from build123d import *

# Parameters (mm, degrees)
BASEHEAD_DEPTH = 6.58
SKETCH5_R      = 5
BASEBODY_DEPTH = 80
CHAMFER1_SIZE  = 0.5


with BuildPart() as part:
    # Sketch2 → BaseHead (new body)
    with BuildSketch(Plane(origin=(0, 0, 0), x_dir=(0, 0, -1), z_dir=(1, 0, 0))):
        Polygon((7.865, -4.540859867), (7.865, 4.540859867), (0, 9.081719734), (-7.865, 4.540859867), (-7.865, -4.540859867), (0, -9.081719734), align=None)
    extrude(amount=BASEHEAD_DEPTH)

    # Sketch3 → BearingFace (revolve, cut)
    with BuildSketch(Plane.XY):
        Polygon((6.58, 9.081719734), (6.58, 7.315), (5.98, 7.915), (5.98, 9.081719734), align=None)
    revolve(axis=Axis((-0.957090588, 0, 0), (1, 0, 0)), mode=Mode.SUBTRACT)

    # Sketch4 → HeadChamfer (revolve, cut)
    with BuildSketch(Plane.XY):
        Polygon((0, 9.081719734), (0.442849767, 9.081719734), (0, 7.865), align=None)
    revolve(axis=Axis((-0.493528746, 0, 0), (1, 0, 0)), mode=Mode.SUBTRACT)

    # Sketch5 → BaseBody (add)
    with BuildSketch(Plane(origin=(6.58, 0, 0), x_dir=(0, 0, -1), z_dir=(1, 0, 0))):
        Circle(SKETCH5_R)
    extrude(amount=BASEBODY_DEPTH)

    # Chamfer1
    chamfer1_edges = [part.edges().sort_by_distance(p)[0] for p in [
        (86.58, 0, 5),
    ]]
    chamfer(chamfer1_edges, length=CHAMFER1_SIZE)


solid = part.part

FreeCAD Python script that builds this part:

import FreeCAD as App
import Part
import Sketcher
from FreeCAD import Vector
Q = App.Units.Quantity


def edges_at(feature, points):
    """Names of the edges that pass closest to the given points."""
    edges = feature.Shape.Edges
    near = lambda p: min(range(len(edges)), key=lambda i: edges[i].distToShape(Part.Vertex(*p))[0])
    return sorted({f"Edge{near(p) + 1}" for p in points})

doc = App.newDocument("Part")
body = doc.addObject("PartDesign::Body", "Body")

# Sketch on YZ plane
sketch1 = doc.addObject("Sketcher::SketchObject", "Sketch")
body.addObject(sketch1)
sketch1.AttachmentSupport = (doc.YZ_Plane, [""])
sketch1.MapMode = "FlatFace"
sketch1.addGeometry([
    Part.LineSegment(Vector(-5, -8, 0), Vector(5, -8, 0)),  # 0
    Part.LineSegment(Vector(5, -8, 0), Vector(9, 0, 0)),  # 1
    Part.LineSegment(Vector(9, 0, 0), Vector(5, 8, 0)),  # 2
    Part.LineSegment(Vector(5, 8, 0), Vector(-5, 8, 0)),  # 3
    Part.LineSegment(Vector(-5, 8, 0), Vector(-9, 0, 0)),  # 4
    Part.LineSegment(Vector(-9, 0, 0), Vector(-5, -8, 0)),  # 5
], False)
sketch1.addConstraint([
    Sketcher.Constraint("Coincident", 0, 2, 1, 1),
    Sketcher.Constraint("Coincident", 1, 2, 2, 1),
    Sketcher.Constraint("Coincident", 2, 2, 3, 1),
    Sketcher.Constraint("Coincident", 3, 2, 4, 1),
    Sketcher.Constraint("Coincident", 4, 2, 5, 1),
    Sketcher.Constraint("Coincident", 5, 2, 0, 1),
    Sketcher.Constraint("Horizontal", 0),
    Sketcher.Constraint("Horizontal", 3),
    Sketcher.Constraint("Symmetric", 0, 2, 3, 2, -1, 1),
    Sketcher.Constraint("Symmetric", 1, 2, 4, 2, -1, 1),
    Sketcher.Constraint("PointOnObject", 1, 2, -1),
    Sketcher.Constraint("Parallel", 2, 5),
    Sketcher.Constraint("Vertical", 0, 2, 2, 2),
    Sketcher.Constraint("Angle", 1, Q("60 deg")),
    Sketcher.Constraint("DistanceY", 0, 2, 2, 2, 15.73),
    Sketcher.Constraint("DistanceX", 0, 1, 0, 2, 9.08172),
])
pad1 = doc.addObject("PartDesign::Pad", "Pad")
body.addObject(pad1)
pad1.Profile = sketch1
pad1.Length = 6.58

# Sketch on XY plane
sketch2 = doc.addObject("Sketcher::SketchObject", "Sketch001")
body.addObject(sketch2)
sketch2.AttachmentSupport = (doc.XY_Plane, [""])
sketch2.MapMode = "FlatFace"
sketch2.addGeometry([
    Part.LineSegment(Vector(6.6, 7.3, 0), Vector(6.6, 9.1, 0)),
    Part.LineSegment(Vector(6.6, 9.1, 0), Vector(6, 9.1, 0)),
    Part.LineSegment(Vector(6, 9.1, 0), Vector(6, 7.9, 0)),
    Part.LineSegment(Vector(6, 7.9, 0), Vector(6.6, 7.3, 0)),
], False)
sketch2.addConstraint([
    Sketcher.Constraint("Coincident", 0, 2, 1, 1),
    Sketcher.Constraint("Coincident", 1, 2, 2, 1),
    Sketcher.Constraint("Coincident", 2, 2, 3, 1),
    Sketcher.Constraint("Coincident", 3, 2, 0, 1),
    Sketcher.Constraint("Vertical", 0),
    Sketcher.Constraint("Horizontal", 1),
    Sketcher.Constraint("Vertical", 2),
    Sketcher.Constraint("Angle", 3, Q("-45 deg")),
    Sketcher.Constraint("DistanceX", 1, 2, 1, 1, 0.6),
    Sketcher.Constraint("DistanceX", -1, 1, 0, 2, 6.58),
    Sketcher.Constraint("DistanceY", -1, 1, 2, 2, 7.915),
    Sketcher.Constraint("DistanceY", 0, 1, 0, 2, 1.76672),
])
groove = doc.addObject("PartDesign::Groove", "Groove")
body.addObject(groove)
groove.Profile = sketch2
groove.ReferenceAxis = (sketch2, ["H_Axis"])
groove.Angle = 360

# Sketch on XY plane
sketch3 = doc.addObject("Sketcher::SketchObject", "Sketch002")
body.addObject(sketch3)
sketch3.AttachmentSupport = (doc.XY_Plane, [""])
sketch3.MapMode = "FlatFace"
sketch3.addGeometry([
    Part.LineSegment(Vector(0.44, 9.08, 0), Vector(0, 9.08, 0)),
    Part.LineSegment(Vector(0, 9.08, 0), Vector(0, 7.87, 0)),
    Part.LineSegment(Vector(0, 7.87, 0), Vector(0.44, 9.08, 0)),
], False)
sketch3.addConstraint([
    Sketcher.Constraint("Coincident", 0, 2, 1, 1),
    Sketcher.Constraint("Coincident", 1, 2, 2, 1),
    Sketcher.Constraint("Coincident", 2, 2, 0, 1),
    Sketcher.Constraint("Horizontal", 0),
    Sketcher.Constraint("Vertical", 1),
    Sketcher.Constraint("PointOnObject", 0, 2, -2),
    Sketcher.Constraint("Angle", 2, Q("70 deg")),
    Sketcher.Constraint("DistanceY", -1, 1, 1, 2, 7.865),
    Sketcher.Constraint("DistanceX", 0, 2, 0, 1, 0.44285),
])
groove2 = doc.addObject("PartDesign::Groove", "Groove001")
body.addObject(groove2)
groove2.Profile = sketch3
groove2.ReferenceAxis = (sketch3, ["H_Axis"])
groove2.Angle = 360

# Sketch on YZ plane
sketch4 = doc.addObject("Sketcher::SketchObject", "Sketch003")
body.addObject(sketch4)
sketch4.AttachmentSupport = (doc.YZ_Plane, [""])
sketch4.MapMode = "FlatFace"
sketch4.AttachmentOffset = App.Placement(Vector(0, 0, 6.58), App.Rotation())
sketch4.addGeometry(Part.Circle(Vector(0, 0, 0), Vector(0, 0, 1), 5), False)
sketch4.addConstraint([
    Sketcher.Constraint("Coincident", 0, 3, -1, 1),
    Sketcher.Constraint("Diameter", 0, 10.0),
])
pad2 = doc.addObject("PartDesign::Pad", "Pad001")
body.addObject(pad2)
pad2.Profile = sketch4
pad2.Length = 80
doc.recompute()

chamfer = doc.addObject("PartDesign::Chamfer", "Chamfer")
body.addObject(chamfer)
chamfer.Base = (pad2, edges_at(pad2, [(86.58, 0, 5)]))
chamfer.Size = 0.5

doc.recompute()
